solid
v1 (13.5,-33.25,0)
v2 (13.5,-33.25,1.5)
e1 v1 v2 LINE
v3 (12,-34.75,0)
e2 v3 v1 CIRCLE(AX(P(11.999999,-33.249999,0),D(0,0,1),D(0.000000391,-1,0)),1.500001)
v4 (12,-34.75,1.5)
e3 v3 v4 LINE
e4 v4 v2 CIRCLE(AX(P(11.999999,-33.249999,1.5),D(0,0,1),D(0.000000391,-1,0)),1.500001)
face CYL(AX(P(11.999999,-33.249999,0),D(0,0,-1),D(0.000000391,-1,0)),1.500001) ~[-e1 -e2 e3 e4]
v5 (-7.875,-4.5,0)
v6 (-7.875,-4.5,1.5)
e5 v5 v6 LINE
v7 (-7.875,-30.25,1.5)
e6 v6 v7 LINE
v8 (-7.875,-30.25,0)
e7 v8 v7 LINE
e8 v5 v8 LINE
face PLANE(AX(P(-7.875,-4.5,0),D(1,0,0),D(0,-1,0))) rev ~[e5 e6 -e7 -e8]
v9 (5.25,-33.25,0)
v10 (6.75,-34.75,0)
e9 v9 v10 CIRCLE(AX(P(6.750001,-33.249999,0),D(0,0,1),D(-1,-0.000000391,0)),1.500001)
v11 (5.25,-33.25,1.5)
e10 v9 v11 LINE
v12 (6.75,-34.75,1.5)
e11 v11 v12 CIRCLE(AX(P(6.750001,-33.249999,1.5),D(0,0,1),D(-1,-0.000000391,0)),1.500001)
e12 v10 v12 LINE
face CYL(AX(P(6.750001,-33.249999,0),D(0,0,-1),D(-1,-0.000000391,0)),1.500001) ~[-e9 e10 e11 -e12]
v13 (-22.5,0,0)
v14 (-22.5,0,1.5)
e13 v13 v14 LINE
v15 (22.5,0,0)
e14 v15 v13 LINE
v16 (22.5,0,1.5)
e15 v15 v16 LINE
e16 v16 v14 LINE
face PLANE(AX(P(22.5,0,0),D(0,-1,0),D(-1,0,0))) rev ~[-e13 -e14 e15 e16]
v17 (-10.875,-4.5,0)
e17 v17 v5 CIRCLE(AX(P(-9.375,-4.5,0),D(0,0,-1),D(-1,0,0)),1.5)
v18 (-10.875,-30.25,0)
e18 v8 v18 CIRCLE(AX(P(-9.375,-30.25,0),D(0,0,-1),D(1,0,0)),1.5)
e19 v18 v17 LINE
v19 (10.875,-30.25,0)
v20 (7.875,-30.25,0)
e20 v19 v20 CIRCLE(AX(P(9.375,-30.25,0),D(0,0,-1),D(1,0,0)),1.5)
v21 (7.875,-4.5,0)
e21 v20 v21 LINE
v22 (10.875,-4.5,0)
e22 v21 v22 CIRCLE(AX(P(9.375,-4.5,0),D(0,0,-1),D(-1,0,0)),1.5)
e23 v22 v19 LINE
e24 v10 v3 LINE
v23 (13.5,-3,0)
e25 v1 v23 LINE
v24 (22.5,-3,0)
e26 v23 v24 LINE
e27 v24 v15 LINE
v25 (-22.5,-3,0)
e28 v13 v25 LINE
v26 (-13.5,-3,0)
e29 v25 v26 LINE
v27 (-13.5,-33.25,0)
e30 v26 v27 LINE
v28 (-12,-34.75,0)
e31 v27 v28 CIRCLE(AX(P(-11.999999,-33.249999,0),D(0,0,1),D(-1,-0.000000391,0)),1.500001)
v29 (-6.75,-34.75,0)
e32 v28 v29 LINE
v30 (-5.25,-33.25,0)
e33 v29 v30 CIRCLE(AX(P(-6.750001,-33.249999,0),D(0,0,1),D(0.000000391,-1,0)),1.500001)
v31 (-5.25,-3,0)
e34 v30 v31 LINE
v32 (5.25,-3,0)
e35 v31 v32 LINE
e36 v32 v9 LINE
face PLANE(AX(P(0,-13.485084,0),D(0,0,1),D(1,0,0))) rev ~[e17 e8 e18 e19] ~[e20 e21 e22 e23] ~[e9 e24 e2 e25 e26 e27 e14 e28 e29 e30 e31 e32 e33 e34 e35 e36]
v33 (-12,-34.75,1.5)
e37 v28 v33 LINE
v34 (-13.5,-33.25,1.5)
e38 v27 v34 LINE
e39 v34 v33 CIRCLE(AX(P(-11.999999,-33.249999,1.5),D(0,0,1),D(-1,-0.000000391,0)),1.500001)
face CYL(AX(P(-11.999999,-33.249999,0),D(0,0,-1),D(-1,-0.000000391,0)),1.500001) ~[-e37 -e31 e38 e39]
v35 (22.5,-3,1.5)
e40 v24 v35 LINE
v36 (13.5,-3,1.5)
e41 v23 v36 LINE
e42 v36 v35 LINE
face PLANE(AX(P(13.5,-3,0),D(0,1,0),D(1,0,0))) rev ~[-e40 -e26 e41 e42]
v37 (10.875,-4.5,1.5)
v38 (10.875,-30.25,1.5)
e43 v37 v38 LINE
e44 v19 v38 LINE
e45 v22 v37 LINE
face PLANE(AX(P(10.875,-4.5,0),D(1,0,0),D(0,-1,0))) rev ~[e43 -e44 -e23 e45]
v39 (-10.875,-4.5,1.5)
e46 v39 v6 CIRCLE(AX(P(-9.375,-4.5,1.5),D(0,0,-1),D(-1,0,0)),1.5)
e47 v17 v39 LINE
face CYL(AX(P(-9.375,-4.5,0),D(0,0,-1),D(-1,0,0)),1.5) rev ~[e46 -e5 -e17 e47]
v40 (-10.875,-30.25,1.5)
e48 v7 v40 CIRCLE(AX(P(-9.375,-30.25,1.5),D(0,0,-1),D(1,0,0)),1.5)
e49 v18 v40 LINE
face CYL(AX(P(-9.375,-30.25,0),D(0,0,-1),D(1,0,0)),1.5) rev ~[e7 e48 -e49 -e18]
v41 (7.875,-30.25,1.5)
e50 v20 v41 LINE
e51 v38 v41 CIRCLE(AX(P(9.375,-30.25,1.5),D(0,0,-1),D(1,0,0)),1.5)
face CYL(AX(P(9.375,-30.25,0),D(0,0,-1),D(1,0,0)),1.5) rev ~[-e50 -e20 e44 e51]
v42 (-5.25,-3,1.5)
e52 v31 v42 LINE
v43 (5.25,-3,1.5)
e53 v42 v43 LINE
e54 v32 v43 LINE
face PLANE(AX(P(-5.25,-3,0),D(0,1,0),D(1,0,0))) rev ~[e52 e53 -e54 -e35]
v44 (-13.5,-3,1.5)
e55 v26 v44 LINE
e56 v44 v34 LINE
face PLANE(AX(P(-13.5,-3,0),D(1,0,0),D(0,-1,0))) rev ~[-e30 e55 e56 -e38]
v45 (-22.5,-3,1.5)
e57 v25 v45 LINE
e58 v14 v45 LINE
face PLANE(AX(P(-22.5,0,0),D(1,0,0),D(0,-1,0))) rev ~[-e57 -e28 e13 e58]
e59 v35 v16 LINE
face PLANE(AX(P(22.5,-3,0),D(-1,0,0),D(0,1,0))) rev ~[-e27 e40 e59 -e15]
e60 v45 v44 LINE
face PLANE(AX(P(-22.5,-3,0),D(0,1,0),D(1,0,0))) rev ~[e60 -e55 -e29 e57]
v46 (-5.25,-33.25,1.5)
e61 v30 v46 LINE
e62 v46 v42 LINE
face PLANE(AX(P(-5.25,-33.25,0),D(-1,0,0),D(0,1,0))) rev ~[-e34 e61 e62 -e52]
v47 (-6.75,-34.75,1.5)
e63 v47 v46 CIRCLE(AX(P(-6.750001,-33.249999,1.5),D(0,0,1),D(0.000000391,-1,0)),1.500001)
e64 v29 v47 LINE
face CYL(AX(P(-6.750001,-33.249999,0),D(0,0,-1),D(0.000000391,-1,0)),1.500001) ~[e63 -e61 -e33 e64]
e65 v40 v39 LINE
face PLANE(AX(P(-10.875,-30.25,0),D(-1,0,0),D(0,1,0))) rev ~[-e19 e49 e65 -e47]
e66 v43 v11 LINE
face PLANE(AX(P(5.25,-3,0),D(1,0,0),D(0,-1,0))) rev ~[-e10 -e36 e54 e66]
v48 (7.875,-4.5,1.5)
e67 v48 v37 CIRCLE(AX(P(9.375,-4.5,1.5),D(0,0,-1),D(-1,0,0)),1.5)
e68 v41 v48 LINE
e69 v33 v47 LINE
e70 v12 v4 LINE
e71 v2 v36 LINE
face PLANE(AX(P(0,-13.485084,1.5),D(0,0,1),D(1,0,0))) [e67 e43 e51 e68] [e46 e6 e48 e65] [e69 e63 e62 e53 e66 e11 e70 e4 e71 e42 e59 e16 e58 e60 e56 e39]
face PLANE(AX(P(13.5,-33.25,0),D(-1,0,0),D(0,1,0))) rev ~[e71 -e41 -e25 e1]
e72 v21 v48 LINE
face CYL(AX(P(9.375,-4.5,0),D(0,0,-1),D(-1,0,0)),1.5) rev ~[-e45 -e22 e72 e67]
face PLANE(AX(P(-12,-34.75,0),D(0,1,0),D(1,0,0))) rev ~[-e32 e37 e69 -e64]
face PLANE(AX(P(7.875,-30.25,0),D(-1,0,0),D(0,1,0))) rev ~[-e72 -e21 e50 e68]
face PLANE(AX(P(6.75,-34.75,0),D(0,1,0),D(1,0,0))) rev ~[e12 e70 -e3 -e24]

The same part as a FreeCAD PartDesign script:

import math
import FreeCAD as App
import Part
import Sketcher

V = App.Vector
Q = App.Units.Quantity

doc = App.newDocument("Part")
body = doc.addObject("PartDesign::Body", "Body")

# Sketch on XY plane
sketch1 = body.newObject("Sketcher::SketchObject", "Sketch")
sketch1.AttachmentSupport = (doc.getObject("XY_Plane"), [""])
sketch1.MapMode = "FlatFace"
sketch1.addGeometry(Part.LineSegment(V(22.5, 0, 0), V(-22.5, 0, 0)), False)
sketch1.addGeometry(Part.LineSegment(V(-22.5, 0, 0), V(-22.5, -3, 0)), False)
sketch1.addGeometry(Part.LineSegment(V(-22.5, -3, 0), V(-13.5, -3, 0)), False)
sketch1.addGeometry(Part.LineSegment(V(-13.5, -3, 0), V(-13.5, -33.2, 0)), False)
sketch1.addGeometry(Part.ArcOfCircle(Part.Circle(V(-12, -33.2, 0), V(0, 0, 1), 1.5), math.radians(-180), math.radians(-90)), False)
sketch1.addGeometry(Part.LineSegment(V(-12, -34.8, 0), V(-6.8, -34.8, 0)), False)
sketch1.addGeometry(Part.ArcOfCircle(Part.Circle(V(-6.8, -33.2, 0), V(0, 0, 1), 1.5), math.radians(-90), math.radians(0)), False)
sketch1.addGeometry(Part.LineSegment(V(-5.2, -33.2, 0), V(-5.2, -3, 0)), False)
sketch1.addGeometry(Part.LineSegment(V(-5.2, -3, 0), V(5.2, -3, 0)), False)
sketch1.addGeometry(Part.LineSegment(V(5.2, -3, 0), V(5.2, -33.2, 0)), False)
sketch1.addGeometry(Part.ArcOfCircle(Part.Circle(V(6.8, -33.2, 0), V(0, 0, 1), 1.5), math.radians(-180), math.radians(-90)), False)
sketch1.addGeometry(Part.LineSegment(V(6.8, -34.8, 0), V(12, -34.8, 0)), False)
sketch1.addGeometry(Part.ArcOfCircle(Part.Circle(V(12, -33.2, 0), V(0, 0, 1), 1.5), math.radians(-90), math.radians(0)), False)
sketch1.addGeometry(Part.LineSegment(V(13.5, -33.2, 0), V(13.5, -3, 0)), False)
sketch1.addGeometry(Part.LineSegment(V(13.5, -3, 0), V(22.5, -3, 0)), False)
sketch1.addGeometry(Part.LineSegment(V(22.5, -3, 0), V(22.5, 0, 0)), False)
sketch1.addGeometry(Part.LineSegment(V(-10.9, -30.2, 0), V(-10.9, -4.5, 0)), False)
sketch1.addGeometry(Part.ArcOfCircle(Part.Circle(V(-9.4, -4.5, 0), V(0, 0, 1), 1.5), math.radians(0), math.radians(180)), False)
sketch1.addGeometry(Part.LineSegment(V(-7.9, -4.5, 0), V(-7.9, -30.2, 0)), False)
sketch1.addGeometry(Part.ArcOfCircle(Part.Circle(V(-9.4, -30.2, 0), V(0, 0, 1), 1.5), math.radians(180), math.radians(360)), False)
sketch1.addGeometry(Part.LineSegment(V(7.9, -30.2, 0), V(7.9, -4.5, 0)), False)
sketch1.addGeometry(Part.ArcOfCircle(Part.Circle(V(9.4, -4.5, 0), V(0, 0, 1), 1.5), math.radians(0), math.radians(180)), False)
sketch1.addGeometry(Part.LineSegment(V(10.9, -4.5, 0), V(10.9, -30.2, 0)), False)
sketch1.addGeometry(Part.ArcOfCircle(Part.Circle(V(9.4, -30.2, 0), V(0, 0, 1), 1.5), math.radians(180), math.radians(360)), False)
sketch1.addConstraint(Sketcher.Constraint("Coincident", 0, 2, 1, 1))
sketch1.addConstraint(Sketcher.Constraint("Coincident", 1, 2, 2, 1))
sketch1.addConstraint(Sketcher.Constraint("Coincident", 2, 2, 3, 1))
sketch1.addConstraint(Sketcher.Constraint("Tangent", 3, 2, 4, 1))
sketch1.addConstraint(Sketcher.Constraint("Tangent", 4, 2, 5, 1))
sketch1.addConstraint(Sketcher.Constraint("Tangent", 5, 2, 6, 1))
sketch1.addConstraint(Sketcher.Constraint("Tangent", 6, 2, 7, 1))
sketch1.addConstraint(Sketcher.Constraint("Coincident", 7, 2, 8, 1))
sketch1.addConstraint(Sketcher.Constraint("Coincident", 8, 2, 9, 1))
sketch1.addConstraint(Sketcher.Constraint("Tangent", 9, 2, 10, 1))
sketch1.addConstraint(Sketcher.Constraint("Tangent", 10, 2, 11, 1))
sketch1.addConstraint(Sketcher.Constraint("Tangent", 11, 2, 12, 1))
sketch1.addConstraint(Sketcher.Constraint("Tangent", 12, 2, 13, 1))
sketch1.addConstraint(Sketcher.Constraint("Coincident", 13, 2, 14, 1))
sketch1.addConstraint(Sketcher.Constraint("Coincident", 14, 2, 15, 1))
sketch1.addConstraint(Sketcher.Constraint("Coincident", 15, 2, 0, 1))
sketch1.addConstraint(Sketcher.Constraint("Tangent", 16, 2, 17, 2))
sketch1.addConstraint(Sketcher.Constraint("Tangent", 17, 1, 18, 1))
sketch1.addConstraint(Sketcher.Constraint("Tangent", 18, 2, 19, 2))
sketch1.addConstraint(Sketcher.Constraint("Tangent", 19, 1, 16, 1))
sketch1.addConstraint(Sketcher.Constraint("Tangent", 20, 2, 21, 2))
sketch1.addConstraint(Sketcher.Constraint("Tangent", 21, 1, 22, 1))
sketch1.addConstraint(Sketcher.Constraint("Tangent", 22, 2, 23, 2))
sketch1.addConstraint(Sketcher.Constraint("Tangent", 23, 1, 20, 1))
sketch1.addConstraint(Sketcher.Constraint("Horizontal", 0))
sketch1.addConstraint(Sketcher.Constraint("Vertical", 1))
sketch1.addConstraint(Sketcher.Constraint("Horizontal", 2))
sketch1.addConstraint(Sketcher.Constraint("Vertical", 3))
sketch1.addConstraint(Sketcher.Constraint("Horizontal", 5))
sketch1.addConstraint(Sketcher.Constraint("Vertical", 7))
sketch1.addConstraint(Sketcher.Constraint("Horizontal", 8))
sketch1.addConstraint(Sketcher.Constraint("Vertical", 9))
sketch1.addConstraint(Sketcher.Constraint("Horizontal", 11))
sketch1.addConstraint(Sketcher.Constraint("Vertical", 13))
sketch1.addConstraint(Sketcher.Constraint("Horizontal", 14))
sketch1.addConstraint(Sketcher.Constraint("Vertical", 15))
sketch1.addConstraint(Sketcher.Constraint("Vertical", 16))
sketch1.addConstraint(Sketcher.Constraint("Vertical", 18))
sketch1.addConstraint(Sketcher.Constraint("Vertical", 20))
sketch1.addConstraint(Sketcher.Constraint("Vertical", 22))
sketch1.addConstraint(Sketcher.Constraint("Equal", 4, 6))
sketch1.addConstraint(Sketcher.Constraint("Equal", 6, 10))
sketch1.addConstraint(Sketcher.Constraint("Equal", 10, 12))
sketch1.addConstraint(Sketcher.Constraint("Equal", 12, 17))
sketch1.addConstraint(Sketcher.Constraint("Equal", 19, 21))
sketch1.addConstraint(Sketcher.Constraint("Symmetric", 0, 2, 15, 2, -1, 1))
sketch1.addConstraint(Sketcher.Constraint("Symmetric", 6, 3, 10, 3, -2))
sketch1.addConstraint(Sketcher.Constraint("Symmetric", 17, 3, 21, 3, -2))
sketch1.addConstraint(Sketcher.Constraint("Symmetric", 2, 2, 13, 2, -2))
sketch1.addConstraint(Sketcher.Constraint("Horizontal", 19, 3, 23, 3))
sketch1.addConstraint(Sketcher.Constraint("Horizontal", 2, 2, 7, 2))
sketch1.addConstraint(Sketcher.Constraint("Radius", 4, Q("1.500001 mm")))
sketch1.addConstraint(Sketcher.Constraint("DistanceX", 0, 2, 0, 1, Q("45 mm")))
sketch1.addConstraint(Sketcher.Constraint("DistanceX", 2, 1, 2, 2, Q("9 mm")))
sketch1.addConstraint(Sketcher.Constraint("DistanceY", 1, 2, 1, 1, Q("3 mm")))
sketch1.addConstraint(Sketcher.Constraint("DistanceX", 8, 1, 8, 2, Q("10.5 mm")))
sketch1.addConstraint(Sketcher.Constraint("DistanceY", 4, 3, 19, 3, Q("2.999999 mm")))
sketch1.addConstraint(Sketcher.Constraint("DistanceY", 3, 2, 3, 1, Q("30.25 mm")))
sketch1.addConstraint(Sketcher.Constraint("DistanceY", 16, 1, 16, 2, Q("25.75 mm")))
sketch1.addConstraint(Sketcher.Constraint("DistanceX", 17, 3, 21, 3, Q("18.75 mm")))
pad1 = body.newObject("PartDesign::Pad", "Pad")
pad1.Profile = sketch1
pad1.Length = 1.5

doc.recompute()
